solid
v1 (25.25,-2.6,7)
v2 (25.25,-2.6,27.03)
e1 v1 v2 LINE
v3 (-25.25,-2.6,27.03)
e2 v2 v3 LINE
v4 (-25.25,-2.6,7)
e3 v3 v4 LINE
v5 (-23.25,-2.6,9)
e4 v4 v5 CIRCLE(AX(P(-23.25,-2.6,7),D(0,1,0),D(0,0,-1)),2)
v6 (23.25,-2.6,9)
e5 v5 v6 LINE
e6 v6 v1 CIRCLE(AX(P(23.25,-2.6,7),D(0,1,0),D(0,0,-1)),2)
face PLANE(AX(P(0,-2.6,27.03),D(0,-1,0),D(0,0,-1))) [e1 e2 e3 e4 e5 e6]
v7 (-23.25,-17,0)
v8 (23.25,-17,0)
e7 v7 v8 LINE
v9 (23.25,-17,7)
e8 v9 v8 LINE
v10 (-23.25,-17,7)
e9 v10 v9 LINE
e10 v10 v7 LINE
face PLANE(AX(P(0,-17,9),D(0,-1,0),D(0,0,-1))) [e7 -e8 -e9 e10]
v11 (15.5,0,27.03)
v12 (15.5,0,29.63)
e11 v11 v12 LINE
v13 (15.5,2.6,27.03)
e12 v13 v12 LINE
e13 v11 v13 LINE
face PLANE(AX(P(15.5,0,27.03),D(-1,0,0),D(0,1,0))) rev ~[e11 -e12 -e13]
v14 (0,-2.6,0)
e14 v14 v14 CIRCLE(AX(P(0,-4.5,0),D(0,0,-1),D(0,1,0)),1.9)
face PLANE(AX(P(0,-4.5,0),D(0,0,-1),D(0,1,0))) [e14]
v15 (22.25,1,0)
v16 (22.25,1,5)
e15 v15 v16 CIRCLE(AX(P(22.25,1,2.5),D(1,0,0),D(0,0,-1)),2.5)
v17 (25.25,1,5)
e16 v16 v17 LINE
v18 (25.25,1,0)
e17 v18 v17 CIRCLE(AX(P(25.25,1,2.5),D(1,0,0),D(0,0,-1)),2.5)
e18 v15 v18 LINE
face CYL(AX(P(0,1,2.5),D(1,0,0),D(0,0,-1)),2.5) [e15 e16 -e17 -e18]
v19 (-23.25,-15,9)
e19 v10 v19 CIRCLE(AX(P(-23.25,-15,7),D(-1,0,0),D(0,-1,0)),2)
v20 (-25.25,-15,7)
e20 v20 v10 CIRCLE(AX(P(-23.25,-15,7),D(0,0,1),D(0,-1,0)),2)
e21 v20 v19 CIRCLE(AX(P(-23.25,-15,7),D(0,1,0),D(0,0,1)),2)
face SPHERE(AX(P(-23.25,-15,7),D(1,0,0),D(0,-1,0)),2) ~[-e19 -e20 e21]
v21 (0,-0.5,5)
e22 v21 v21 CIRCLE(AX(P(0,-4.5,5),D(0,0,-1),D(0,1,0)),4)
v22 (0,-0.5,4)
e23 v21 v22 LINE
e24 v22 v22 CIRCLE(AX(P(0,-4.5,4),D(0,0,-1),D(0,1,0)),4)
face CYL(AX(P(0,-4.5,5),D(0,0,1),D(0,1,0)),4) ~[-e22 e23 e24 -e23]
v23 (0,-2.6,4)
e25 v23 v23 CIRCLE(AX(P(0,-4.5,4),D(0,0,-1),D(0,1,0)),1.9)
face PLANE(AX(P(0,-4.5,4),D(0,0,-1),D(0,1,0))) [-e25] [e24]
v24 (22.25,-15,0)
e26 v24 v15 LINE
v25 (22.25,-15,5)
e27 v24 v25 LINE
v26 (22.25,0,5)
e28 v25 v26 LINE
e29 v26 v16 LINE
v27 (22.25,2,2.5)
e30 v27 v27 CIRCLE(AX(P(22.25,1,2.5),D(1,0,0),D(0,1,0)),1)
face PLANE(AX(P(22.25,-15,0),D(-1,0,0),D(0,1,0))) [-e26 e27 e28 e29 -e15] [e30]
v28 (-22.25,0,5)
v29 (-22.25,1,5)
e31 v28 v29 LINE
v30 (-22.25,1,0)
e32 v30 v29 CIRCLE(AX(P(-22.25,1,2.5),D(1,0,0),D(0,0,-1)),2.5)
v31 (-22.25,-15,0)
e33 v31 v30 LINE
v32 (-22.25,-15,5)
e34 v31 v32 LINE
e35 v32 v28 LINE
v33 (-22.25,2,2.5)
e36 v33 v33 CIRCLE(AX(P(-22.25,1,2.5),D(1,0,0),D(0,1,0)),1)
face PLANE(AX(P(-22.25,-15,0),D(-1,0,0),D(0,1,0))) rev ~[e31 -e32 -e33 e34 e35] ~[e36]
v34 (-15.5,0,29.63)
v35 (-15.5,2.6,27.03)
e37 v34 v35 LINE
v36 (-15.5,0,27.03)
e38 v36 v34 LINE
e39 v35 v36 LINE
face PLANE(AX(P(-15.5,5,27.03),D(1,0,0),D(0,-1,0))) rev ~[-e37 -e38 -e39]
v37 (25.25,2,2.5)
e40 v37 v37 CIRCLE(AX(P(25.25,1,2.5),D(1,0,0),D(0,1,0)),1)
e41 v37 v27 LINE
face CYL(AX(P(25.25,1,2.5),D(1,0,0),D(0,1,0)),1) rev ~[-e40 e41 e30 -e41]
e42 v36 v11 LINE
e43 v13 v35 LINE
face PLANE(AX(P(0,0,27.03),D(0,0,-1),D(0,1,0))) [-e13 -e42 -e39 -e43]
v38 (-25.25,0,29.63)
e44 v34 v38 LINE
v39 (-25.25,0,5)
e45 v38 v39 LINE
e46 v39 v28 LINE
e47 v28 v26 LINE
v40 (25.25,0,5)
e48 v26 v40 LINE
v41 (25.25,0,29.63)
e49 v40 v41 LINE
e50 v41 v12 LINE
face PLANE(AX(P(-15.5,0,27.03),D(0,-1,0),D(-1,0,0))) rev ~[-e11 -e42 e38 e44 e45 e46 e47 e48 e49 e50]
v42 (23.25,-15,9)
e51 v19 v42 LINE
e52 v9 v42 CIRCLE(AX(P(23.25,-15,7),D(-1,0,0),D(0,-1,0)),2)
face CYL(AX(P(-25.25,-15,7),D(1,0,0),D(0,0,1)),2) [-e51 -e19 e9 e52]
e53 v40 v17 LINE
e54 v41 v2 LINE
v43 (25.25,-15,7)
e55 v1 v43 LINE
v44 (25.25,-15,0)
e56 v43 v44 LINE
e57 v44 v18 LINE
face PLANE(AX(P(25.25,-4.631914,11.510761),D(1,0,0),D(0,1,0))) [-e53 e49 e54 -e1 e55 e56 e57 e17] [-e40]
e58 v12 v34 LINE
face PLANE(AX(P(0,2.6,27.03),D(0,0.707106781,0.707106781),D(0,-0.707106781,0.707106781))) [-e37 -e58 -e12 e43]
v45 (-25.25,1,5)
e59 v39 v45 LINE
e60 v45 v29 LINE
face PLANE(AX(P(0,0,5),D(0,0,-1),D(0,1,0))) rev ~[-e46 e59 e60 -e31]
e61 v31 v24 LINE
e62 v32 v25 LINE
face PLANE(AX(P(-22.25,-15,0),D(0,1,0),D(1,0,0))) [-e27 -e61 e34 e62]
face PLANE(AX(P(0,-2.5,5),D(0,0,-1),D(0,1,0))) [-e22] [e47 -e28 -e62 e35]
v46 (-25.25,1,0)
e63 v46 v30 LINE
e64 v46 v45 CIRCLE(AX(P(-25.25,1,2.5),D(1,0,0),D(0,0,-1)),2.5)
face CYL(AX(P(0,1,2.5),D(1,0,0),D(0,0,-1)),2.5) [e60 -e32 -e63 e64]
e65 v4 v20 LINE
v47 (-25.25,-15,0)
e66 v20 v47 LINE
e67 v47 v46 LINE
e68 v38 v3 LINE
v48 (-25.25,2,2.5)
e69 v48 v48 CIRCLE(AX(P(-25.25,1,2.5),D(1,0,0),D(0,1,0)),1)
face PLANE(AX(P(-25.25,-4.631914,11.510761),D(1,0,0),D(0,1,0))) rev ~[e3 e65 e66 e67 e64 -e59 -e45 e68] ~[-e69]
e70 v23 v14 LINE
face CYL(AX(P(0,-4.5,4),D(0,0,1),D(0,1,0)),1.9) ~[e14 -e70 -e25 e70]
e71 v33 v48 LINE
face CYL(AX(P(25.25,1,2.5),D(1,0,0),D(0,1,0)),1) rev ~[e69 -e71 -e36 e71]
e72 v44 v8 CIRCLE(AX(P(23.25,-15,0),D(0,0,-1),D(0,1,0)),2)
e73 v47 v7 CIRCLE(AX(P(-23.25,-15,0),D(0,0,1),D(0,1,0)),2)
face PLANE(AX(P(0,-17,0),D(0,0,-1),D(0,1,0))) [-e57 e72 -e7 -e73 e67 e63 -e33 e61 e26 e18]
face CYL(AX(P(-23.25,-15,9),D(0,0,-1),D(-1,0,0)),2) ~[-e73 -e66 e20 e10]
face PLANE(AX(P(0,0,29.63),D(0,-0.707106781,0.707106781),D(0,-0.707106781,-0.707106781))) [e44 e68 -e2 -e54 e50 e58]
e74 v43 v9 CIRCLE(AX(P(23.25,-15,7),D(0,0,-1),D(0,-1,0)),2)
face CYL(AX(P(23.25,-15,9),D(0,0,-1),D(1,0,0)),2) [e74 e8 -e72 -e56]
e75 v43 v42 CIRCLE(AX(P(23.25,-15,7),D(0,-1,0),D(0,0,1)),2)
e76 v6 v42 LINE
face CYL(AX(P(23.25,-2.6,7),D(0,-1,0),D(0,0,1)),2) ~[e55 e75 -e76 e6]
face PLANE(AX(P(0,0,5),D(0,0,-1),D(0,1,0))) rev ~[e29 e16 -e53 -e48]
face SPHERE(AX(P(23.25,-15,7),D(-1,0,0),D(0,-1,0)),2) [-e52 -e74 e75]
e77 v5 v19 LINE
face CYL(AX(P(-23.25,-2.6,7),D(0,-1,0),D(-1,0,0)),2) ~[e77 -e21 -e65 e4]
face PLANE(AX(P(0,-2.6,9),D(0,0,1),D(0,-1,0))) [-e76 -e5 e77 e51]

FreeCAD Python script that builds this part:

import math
import FreeCAD as App
import Part
import Sketcher


def edges_at(feature, points):
    """Names of the edges that pass closest to the given points."""
    edges = feature.Shape.Edges
    near = lambda p: min(range(len(edges)), key=lambda i: edges[i].distToShape(Part.Vertex(*p))[0])
    return sorted({f"Edge{near(p) + 1}" for p in points})

doc = App.newDocument("Part")
body = doc.addObject("PartDesign::Body", "Body")

# Sketch on YZ plane
sketch1 = doc.addObject("Sketcher::SketchObject", "Sketch")
body.addObject(sketch1)
sketch1.AttachmentSupport = (doc.YZ_Plane, [""])
sketch1.MapMode = "FlatFace"
sketch1.addGeometry([
    Part.LineSegment(App.Vector(-2.6, 27.03, 0), App.Vector(-2.6, 9, 0)),  # 0
    Part.LineSegment(App.Vector(-2.6, 9, 0), App.Vector(-17, 9, 0)),  # 1
    Part.LineSegment(App.Vector(-17, 9, 0), App.Vector(-17, 0, 0)),  # 2
    Part.LineSegment(App.Vector(-17, 0, 0), App.Vector(1, 0, 0)),  # 3
    Part.ArcOfCircle(Part.Circle(App.Vector(1, 2.5, 0), App.Vector(0, 0, 1), 2.5), math.radians(-90), math.radians(90)),  # 4
    Part.LineSegment(App.Vector(1, 5, 0), App.Vector(0, 5, 0)),  # 5
    Part.LineSegment(App.Vector(0, 5, 0), App.Vector(0, 27.03, 0)),  # 6
    Part.LineSegment(App.Vector(0, 27.03, 0), App.Vector(2.6, 27.03, 0)),  # 7
    Part.LineSegment(App.Vector(2.6, 27.03, 0), App.Vector(0, 29.63, 0)),  # 8
    Part.LineSegment(App.Vector(0, 29.63, 0), App.Vector(-2.6, 27.03, 0)),  # 9
], False)
sketch1.addConstraint([
    Sketcher.Constraint("Coincident", 0, 2, 1, 1),
    Sketcher.Constraint("Coincident", 1, 2, 2, 1),
    Sketcher.Constraint("Coincident", 2, 2, 3, 1),
    Sketcher.Constraint("Tangent", 3, 2, 4, 1),
    Sketcher.Constraint("Tangent", 4, 2, 5, 1),
    Sketcher.Constraint("Coincident", 5, 2, 6, 1),
    Sketcher.Constraint("Coincident", 6, 2, 7, 1),
    Sketcher.Constraint("Coincident", 7, 2, 8, 1),
    Sketcher.Constraint("Coincident", 8, 2, 9, 1),
    Sketcher.Constraint("Coincident", 9, 2, 0, 1),
    Sketcher.Constraint("Vertical", 0),
    Sketcher.Constraint("Horizontal", 1),
    Sketcher.Constraint("Vertical", 2),
    Sketcher.Constraint("Horizontal", 3),
    Sketcher.Constraint("Horizontal", 5),
    Sketcher.Constraint("Vertical", 6),
    Sketcher.Constraint("Horizontal", 7),
    Sketcher.Constraint("Symmetric", 7, 2, 9, 2, -2),
    Sketcher.Constraint("PointOnObject", 2, 2, -1),
    Sketcher.Constraint("PointOnObject", 5, 2, -2),
    Sketcher.Constraint("PointOnObject", 8, 2, -2),
    Sketcher.Constraint("Perpendicular", 8, 9),
    Sketcher.Constraint("Radius", 4, 2.5),
    Sketcher.Constraint("DistanceX", 3, 1, 3, 2, 18.0),
    Sketcher.Constraint("DistanceX", 5, 2, 5, 1, 1.0),
    Sketcher.Constraint("DistanceY", 2, 2, 2, 1, 9.0),
    Sketcher.Constraint("DistanceX", 1, 2, 1, 1, 14.4),
    Sketcher.Constraint("DistanceY", 0, 2, 0, 1, 18.03),
])
pad1 = doc.addObject("PartDesign::Pad", "Pad")
body.addObject(pad1)
pad1.Profile = sketch1
pad1.Length = 50.5
pad1.Midplane = True

# Sketch on XY plane
sketch2 = doc.addObject("Sketcher::SketchObject", "Sketch001")
body.addObject(sketch2)
sketch2.AttachmentSupport = (doc.XY_Plane, [""])
sketch2.MapMode = "FlatFace"
sketch2.addGeometry([
    Part.LineSegment(App.Vector(22.25, -15, 0), App.Vector(-22.25, -15, 0)),
    Part.LineSegment(App.Vector(-22.25, -15, 0), App.Vector(-22.25, 10, 0)),
    Part.LineSegment(App.Vector(-22.25, 10, 0), App.Vector(22.25, 10, 0)),
    Part.LineSegment(App.Vector(22.25, 10, 0), App.Vector(22.25, -15, 0)),
], False)
sketch2.addConstraint([
    Sketcher.Constraint("Coincident", 0, 2, 1, 1),
    Sketcher.Constraint("Coincident", 1, 2, 2, 1),
    Sketcher.Constraint("Coincident", 2, 2, 3, 1),
    Sketcher.Constraint("Coincident", 3, 2, 0, 1),
    Sketcher.Constraint("Horizontal", 0),
    Sketcher.Constraint("Vertical", 1),
    Sketcher.Constraint("Horizontal", 2),
    Sketcher.Constraint("Vertical", 3),
    Sketcher.Constraint("DistanceY", 1, 1, 1, 2, 25.0),
    Sketcher.Constraint("DistanceX", 0, 2, 0, 1, 44.5),
    Sketcher.Constraint("DistanceY", 0, 2, -1, 1, 15.0),
    Sketcher.Constraint("DistanceX", 0, 2, -1, 1, 22.25),
])
pocket1 = doc.addObject("PartDesign::Pocket", "Pocket")
body.addObject(pocket1)
pocket1.Profile = sketch2
pocket1.Length = 5
pocket1.Reversed = True

# Sketch on XY plane
sketch3 = doc.addObject("Sketcher::SketchObject", "Sketch002")
body.addObject(sketch3)
sketch3.AttachmentSupport = (doc.XY_Plane, [""])
sketch3.MapMode = "FlatFace"
sketch3.AttachmentOffset = App.Placement(App.Vector(0, 0, 5), App.Rotation())
sketch3.addGeometry(Part.Circle(App.Vector(0, -4.5, 0), App.Vector(0, 0, 1), 4), False)
sketch3.addConstraint([
    Sketcher.Constraint("PointOnObject", 0, 3, -2),
    Sketcher.Constraint("Diameter", 0, 8.0),
    Sketcher.Constraint("DistanceY", 0, 3, -1, 1, 4.5),
])
pad2 = doc.addObject("PartDesign::Pad", "Pad001")
body.addObject(pad2)
pad2.Profile = sketch3
pad2.Length = 1
pad2.Reversed = True

# Sketch on XY plane
sketch4 = doc.addObject("Sketcher::SketchObject", "Sketch003")
body.addObject(sketch4)
sketch4.AttachmentSupport = (doc.XY_Plane, [""])
sketch4.MapMode = "FlatFace"
sketch4.AttachmentOffset = App.Placement(App.Vector(0, 0, 4), App.Rotation())
sketch4.addGeometry(Part.Circle(App.Vector(0, -4.5, 0), App.Vector(0, 0, 1), 1.9), False)
sketch4.addConstraint([
    Sketcher.Constraint("PointOnObject", 0, 3, -2),
    Sketcher.Constraint("Diameter", 0, 3.8),
    Sketcher.Constraint("DistanceY", 0, 3, -1, 1, 4.5),
])
pad3 = doc.addObject("PartDesign::Pad", "Pad002")
body.addObject(pad3)
pad3.Profile = sketch4
pad3.Length = 4
pad3.Reversed = True

# Sketch on XY plane
sketch5 = doc.addObject("Sketcher::SketchObject", "Sketch004")
body.addObject(sketch5)
sketch5.AttachmentSupport = (doc.XY_Plane, [""])
sketch5.MapMode = "FlatFace"
sketch5.AttachmentOffset = App.Placement(App.Vector(0, 0, 27.03), App.Rotation())
sketch5.addGeometry([
    Part.LineSegment(App.Vector(15.5, 0, 0), App.Vector(15.5, 5, 0)),  # 0
    Part.LineSegment(App.Vector(15.5, 5, 0), App.Vector(-15.5, 5, 0)),  # 1
    Part.LineSegment(App.Vector(-15.5, 5, 0), App.Vector(-15.5, 0, 0)),  # 2
    Part.LineSegment(App.Vector(-15.5, 0, 0), App.Vector(-30, 0, 0)),  # 3
    Part.LineSegment(App.Vector(-30, 0, 0), App.Vector(-30, 22, 0)),  # 4
    Part.LineSegment(App.Vector(-30, 22, 0), App.Vector(30, 22, 0)),  # 5
    Part.LineSegment(App.Vector(30, 22, 0), App.Vector(30, 0, 0)),  # 6
    Part.LineSegment(App.Vector(30, 0, 0), App.Vector(15.5, 0, 0)),  # 7
], False)
sketch5.addConstraint([
    Sketcher.Constraint("Coincident", 0, 2, 1, 1),
    Sketcher.Constraint("Coincident", 1, 2, 2, 1),
    Sketcher.Constraint("Coincident", 2, 2, 3, 1),
    Sketcher.Constraint("Coincident", 3, 2, 4, 1),
    Sketcher.Constraint("Coincident", 4, 2, 5, 1),
    Sketcher.Constraint("Coincident", 5, 2, 6, 1),
    Sketcher.Constraint("Coincident", 6, 2, 7, 1),
    Sketcher.Constraint("Coincident", 7, 2, 0, 1),
    Sketcher.Constraint("Vertical", 0),
    Sketcher.Constraint("Horizontal", 1),
    Sketcher.Constraint("Vertical", 2),
    Sketcher.Constraint("Horizontal", 3),
    Sketcher.Constraint("Vertical", 4),
    Sketcher.Constraint("Horizontal", 5),
    Sketcher.Constraint("Vertical", 6),
    Sketcher.Constraint("Horizontal", 7),
    Sketcher.Constraint("Symmetric", 3, 2, 6, 2, -1, 1),
    Sketcher.Constraint("Symmetric", 2, 2, 7, 2, -2),
    Sketcher.Constraint("DistanceX", 1, 2, 1, 1, 31.0),
    Sketcher.Constraint("DistanceX", 5, 1, 5, 2, 60.0),
    Sketcher.Constraint("DistanceY", 0, 1, 0, 2, 5.0),
    Sketcher.Constraint("DistanceY", 4, 1, 4, 2, 22.0),
])
pocket2 = doc.addObject("PartDesign::Pocket", "Pocket001")
body.addObject(pocket2)
pocket2.Profile = sketch5
pocket2.Length = 5
pocket2.Reversed = True

# Sketch on YZ plane
sketch6 = doc.addObject("Sketcher::SketchObject", "Sketch005")
body.addObject(sketch6)
sketch6.AttachmentSupport = (doc.YZ_Plane, [""])
sketch6.MapMode = "FlatFace"
sketch6.AttachmentOffset = App.Placement(App.Vector(0, 0, 25.25), App.Rotation())
sketch6.addGeometry(Part.Circle(App.Vector(1, 2.5, 0), App.Vector(0, 0, 1), 1), False)
sketch6.addConstraint([
    Sketcher.Constraint("Diameter", 0, 2.0),
    Sketcher.Constraint("DistanceX", -1, 1, 0, 3, 1.0),
    Sketcher.Constraint("DistanceY", -1, 1, 0, 3, 2.5),
])
pocket3 = doc.addObject("PartDesign::Pocket", "Pocket002")
body.addObject(pocket3)
pocket3.Profile = sketch6
pocket3.Type = "ThroughAll"
doc.recompute()

fillet = doc.addObject("PartDesign::Fillet", "Fillet")
body.addObject(fillet)
fillet.Base = (pocket3, edges_at(pocket3, [
    (0, -17, 9),
    (25.25, -17, 4.5),
    (25.25, -9.8, 9),
    (-25.25, -17, 4.5),
    (-25.25, -9.8, 9),
]))
fillet.Radius = 2

doc.recompute()
